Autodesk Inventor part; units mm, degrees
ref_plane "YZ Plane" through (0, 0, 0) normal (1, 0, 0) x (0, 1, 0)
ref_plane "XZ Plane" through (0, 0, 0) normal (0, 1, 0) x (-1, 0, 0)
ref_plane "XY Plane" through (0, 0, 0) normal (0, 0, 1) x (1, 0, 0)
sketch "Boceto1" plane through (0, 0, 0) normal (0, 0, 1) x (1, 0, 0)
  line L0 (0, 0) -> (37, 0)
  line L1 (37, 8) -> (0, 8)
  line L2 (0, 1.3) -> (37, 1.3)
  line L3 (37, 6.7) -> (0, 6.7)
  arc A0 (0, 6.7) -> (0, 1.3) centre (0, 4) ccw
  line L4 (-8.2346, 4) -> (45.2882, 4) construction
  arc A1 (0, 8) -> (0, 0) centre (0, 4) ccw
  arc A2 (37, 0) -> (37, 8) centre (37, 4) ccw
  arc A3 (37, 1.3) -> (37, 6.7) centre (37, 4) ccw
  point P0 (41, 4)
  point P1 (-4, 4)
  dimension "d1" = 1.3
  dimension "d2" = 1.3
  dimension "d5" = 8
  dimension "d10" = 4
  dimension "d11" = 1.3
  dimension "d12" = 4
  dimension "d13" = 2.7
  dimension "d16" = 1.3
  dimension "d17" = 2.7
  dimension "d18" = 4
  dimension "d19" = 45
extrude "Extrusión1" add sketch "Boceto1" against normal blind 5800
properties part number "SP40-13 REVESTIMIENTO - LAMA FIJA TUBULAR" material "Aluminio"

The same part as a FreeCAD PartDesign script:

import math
import FreeCAD as App
import Part
import Sketcher

V = App.Vector

doc = App.newDocument("Part")
params = doc.addObject("Spreadsheet::Sheet", "Params")
for row, (alias, value) in enumerate([
    ("sketch1_radius", "4 mm"),
    ("sketch1_radius2", "2.7 mm"),
    ("sketch1_width", "37 mm"),
    ("pad1_length", "5800 mm"),
], start=1):
    params.set(f"A{row}", alias)
    params.set(f"B{row}", "=" + value)
    params.setAlias(f"B{row}", alias)

body = doc.addObject("PartDesign::Body", "Body")

sketch1 = body.newObject("Sketcher::SketchObject", "Sketch")
sketch1.AttachmentSupport = (doc.getObject("XY_Plane"), [""])
sketch1.MapMode = "FlatFace"
sketch1.addGeometry(Part.ArcOfCircle(Part.Circle(V(0, 4, 0), V(0, 0, 1), 4), math.radians(90), math.radians(270)), False)
sketch1.addGeometry(Part.LineSegment(V(0, 0, 0), V(37, 0, 0)), False)
sketch1.addGeometry(Part.ArcOfCircle(Part.Circle(V(37, 4, 0), V(0, 0, 1), 4), math.radians(-90), math.radians(90)), False)
sketch1.addGeometry(Part.LineSegment(V(37, 8, 0), V(0, 8, 0)), False)
sketch1.addGeometry(Part.LineSegment(V(37, 1.3, 0), V(0, 1.3, 0)), False)
sketch1.addGeometry(Part.ArcOfCircle(Part.Circle(V(0, 4, 0), V(0, 0, 1), 2.7), math.radians(90), math.radians(270)), False)
sketch1.addGeometry(Part.LineSegment(V(0, 6.7, 0), V(37, 6.7, 0)), False)
sketch1.addGeometry(Part.ArcOfCircle(Part.Circle(V(37, 4, 0), V(0, 0, 1), 2.7), math.radians(-90), math.radians(90)), False)
sketch1.addConstraint(Sketcher.Constraint("Tangent", 0, 2, 1, 1))
sketch1.addConstraint(Sketcher.Constraint("Tangent", 1, 2, 2, 1))
sketch1.addConstraint(Sketcher.Constraint("Tangent", 2, 2, 3, 1))
sketch1.addConstraint(Sketcher.Constraint("Tangent", 3, 2, 0, 1))
sketch1.addConstraint(Sketcher.Constraint("Tangent", 4, 2, 5, 2))
sketch1.addConstraint(Sketcher.Constraint("Tangent", 5, 1, 6, 1))
sketch1.addConstraint(Sketcher.Constraint("Tangent", 6, 2, 7, 2))
sketch1.addConstraint(Sketcher.Constraint("Tangent", 7, 1, 4, 1))
sketch1.addConstraint(Sketcher.Constraint("Horizontal", 1))
sketch1.addConstraint(Sketcher.Constraint("Horizontal", 3))
sketch1.addConstraint(Sketcher.Constraint("Horizontal", 4))
sketch1.addConstraint(Sketcher.Constraint("Horizontal", 6))
sketch1.addConstraint(Sketcher.Constraint("Coincident", 0, 2, -1, 1))
sketch1.addConstraint(Sketcher.Constraint("Coincident", 5, 3, 0, 3))
sketch1.addConstraint(Sketcher.Constraint("Vertical", 7, 3, 1, 2))
sketch1.addConstraint(Sketcher.Constraint("Radius", 0, 4.0))
sketch1.addConstraint(Sketcher.Constraint("Radius", 5, 2.7))
sketch1.addConstraint(Sketcher.Constraint("DistanceX", 1, 1, 1, 2, 37.0))
sketch1.setExpression("Constraints[15]", "Params.sketch1_radius")
sketch1.setExpression("Constraints[16]", "Params.sketch1_radius2")
sketch1.setExpression("Constraints[17]", "Params.sketch1_width")
pad1 = body.newObject("PartDesign::Pad", "Pad")
pad1.Profile = sketch1
pad1.setExpression("Length", "Params.pad1_length")
pad1.Reversed = True

doc.recompute()
